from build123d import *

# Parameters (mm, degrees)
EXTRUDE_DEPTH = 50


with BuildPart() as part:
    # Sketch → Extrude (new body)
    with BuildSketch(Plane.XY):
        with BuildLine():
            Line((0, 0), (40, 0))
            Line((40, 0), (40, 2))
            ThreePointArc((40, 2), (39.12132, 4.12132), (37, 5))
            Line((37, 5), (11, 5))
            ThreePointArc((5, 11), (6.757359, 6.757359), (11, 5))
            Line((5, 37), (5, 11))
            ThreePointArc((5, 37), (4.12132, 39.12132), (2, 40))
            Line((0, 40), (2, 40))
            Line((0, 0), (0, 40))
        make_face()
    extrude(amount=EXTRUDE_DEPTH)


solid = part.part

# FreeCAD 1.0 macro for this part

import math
import FreeCAD as App
import Part
import Sketcher
Q = App.Units.Quantity

doc = App.newDocument("Part")
body = doc.addObject("PartDesign::Body", "Body")

# Sketch on XY plane
sketch1 = body.newObject("Sketcher::SketchObject", "Sketch")
sketch1.AttachmentSupport = (doc.getObject("XY_Plane"), [""])
sketch1.MapMode = "FlatFace"
sketch1.addGeometry(Part.LineSegment(App.Vector(0, 0, 0), App.Vector(40, 0, 0)), False)
sketch1.addGeometry(Part.LineSegment(App.Vector(40, 0, 0), App.Vector(40, 2, 0)), False)
sketch1.addGeometry(Part.ArcOfCircle(Part.Circle(App.Vector(37, 2, 0), App.Vector(0, 0, 1), 3), math.radians(0), math.radians(90)), False)
sketch1.addGeometry(Part.LineSegment(App.Vector(37, 5, 0), App.Vector(11, 5, 0)), False)
sketch1.addGeometry(Part.ArcOfCircle(Part.Circle(App.Vector(11, 11, 0), App.Vector(0, 0, 1), 6), math.radians(180), math.radians(270)), False)
sketch1.addGeometry(Part.LineSegment(App.Vector(5, 11, 0), App.Vector(5, 37, 0)), False)
sketch1.addGeometry(Part.ArcOfCircle(Part.Circle(App.Vector(2, 37, 0), App.Vector(0, 0, 1), 3), math.radians(0), math.radians(90)), False)
sketch1.addGeometry(Part.LineSegment(App.Vector(2, 40, 0), App.Vector(0, 40, 0)), False)
sketch1.addGeometry(Part.LineSegment(App.Vector(0, 40, 0), App.Vector(0, 0, 0)), False)
sketch1.addConstraint(Sketcher.Constraint("Coincident", 0, 2, 1, 1))
sketch1.addConstraint(Sketcher.Constraint("Tangent", 1, 2, 2, 1))
sketch1.addConstraint(Sketcher.Constraint("Tangent", 2, 2, 3, 1))
sketch1.addConstraint(Sketcher.Constraint("Tangent", 3, 2, 4, 2))
sketch1.addConstraint(Sketcher.Constraint("Tangent", 4, 1, 5, 1))
sketch1.addConstraint(Sketcher.Constraint("Tangent", 5, 2, 6, 1))
sketch1.addConstraint(Sketcher.Constraint("Tangent", 6, 2, 7, 1))
sketch1.addConstraint(Sketcher.Constraint("Coincident", 7, 2, 8, 1))
sketch1.addConstraint(Sketcher.Constraint("Coincident", 8, 2, 0, 1))
sketch1.addConstraint(Sketcher.Constraint("Horizontal", 0))
sketch1.addConstraint(Sketcher.Constraint("Vertical", 1))
sketch1.addConstraint(Sketcher.Constraint("Horizontal", 3))
sketch1.addConstraint(Sketcher.Constraint("Vertical", 5))
sketch1.addConstraint(Sketcher.Constraint("Horizontal", 7))
sketch1.addConstraint(Sketcher.Constraint("Vertical", 8))
sketch1.addConstraint(Sketcher.Constraint("Coincident", 8, 2, -1, 1))
sketch1.addConstraint(Sketcher.Constraint("Equal", 2, 6))
sketch1.addConstraint(Sketcher.Constraint("Equal", 7, 1))
sketch1.addConstraint(Sketcher.Constraint("Equal", 3, 5))
sketch1.addConstraint(Sketcher.Constraint("Radius", 2, Q("3.000001 mm")))
sketch1.addConstraint(Sketcher.Constraint("Radius", 4, Q("5.999999 mm")))
sketch1.addConstraint(Sketcher.Constraint("DistanceX", 0, 1, 0, 2, Q("40 mm")))
sketch1.addConstraint(Sketcher.Constraint("DistanceX", 3, 2, 3, 1, Q("26 mm")))
pad1 = body.newObject("PartDesign::Pad", "Pad")
pad1.Profile = sketch1
pad1.Length = 50

doc.recompute()
